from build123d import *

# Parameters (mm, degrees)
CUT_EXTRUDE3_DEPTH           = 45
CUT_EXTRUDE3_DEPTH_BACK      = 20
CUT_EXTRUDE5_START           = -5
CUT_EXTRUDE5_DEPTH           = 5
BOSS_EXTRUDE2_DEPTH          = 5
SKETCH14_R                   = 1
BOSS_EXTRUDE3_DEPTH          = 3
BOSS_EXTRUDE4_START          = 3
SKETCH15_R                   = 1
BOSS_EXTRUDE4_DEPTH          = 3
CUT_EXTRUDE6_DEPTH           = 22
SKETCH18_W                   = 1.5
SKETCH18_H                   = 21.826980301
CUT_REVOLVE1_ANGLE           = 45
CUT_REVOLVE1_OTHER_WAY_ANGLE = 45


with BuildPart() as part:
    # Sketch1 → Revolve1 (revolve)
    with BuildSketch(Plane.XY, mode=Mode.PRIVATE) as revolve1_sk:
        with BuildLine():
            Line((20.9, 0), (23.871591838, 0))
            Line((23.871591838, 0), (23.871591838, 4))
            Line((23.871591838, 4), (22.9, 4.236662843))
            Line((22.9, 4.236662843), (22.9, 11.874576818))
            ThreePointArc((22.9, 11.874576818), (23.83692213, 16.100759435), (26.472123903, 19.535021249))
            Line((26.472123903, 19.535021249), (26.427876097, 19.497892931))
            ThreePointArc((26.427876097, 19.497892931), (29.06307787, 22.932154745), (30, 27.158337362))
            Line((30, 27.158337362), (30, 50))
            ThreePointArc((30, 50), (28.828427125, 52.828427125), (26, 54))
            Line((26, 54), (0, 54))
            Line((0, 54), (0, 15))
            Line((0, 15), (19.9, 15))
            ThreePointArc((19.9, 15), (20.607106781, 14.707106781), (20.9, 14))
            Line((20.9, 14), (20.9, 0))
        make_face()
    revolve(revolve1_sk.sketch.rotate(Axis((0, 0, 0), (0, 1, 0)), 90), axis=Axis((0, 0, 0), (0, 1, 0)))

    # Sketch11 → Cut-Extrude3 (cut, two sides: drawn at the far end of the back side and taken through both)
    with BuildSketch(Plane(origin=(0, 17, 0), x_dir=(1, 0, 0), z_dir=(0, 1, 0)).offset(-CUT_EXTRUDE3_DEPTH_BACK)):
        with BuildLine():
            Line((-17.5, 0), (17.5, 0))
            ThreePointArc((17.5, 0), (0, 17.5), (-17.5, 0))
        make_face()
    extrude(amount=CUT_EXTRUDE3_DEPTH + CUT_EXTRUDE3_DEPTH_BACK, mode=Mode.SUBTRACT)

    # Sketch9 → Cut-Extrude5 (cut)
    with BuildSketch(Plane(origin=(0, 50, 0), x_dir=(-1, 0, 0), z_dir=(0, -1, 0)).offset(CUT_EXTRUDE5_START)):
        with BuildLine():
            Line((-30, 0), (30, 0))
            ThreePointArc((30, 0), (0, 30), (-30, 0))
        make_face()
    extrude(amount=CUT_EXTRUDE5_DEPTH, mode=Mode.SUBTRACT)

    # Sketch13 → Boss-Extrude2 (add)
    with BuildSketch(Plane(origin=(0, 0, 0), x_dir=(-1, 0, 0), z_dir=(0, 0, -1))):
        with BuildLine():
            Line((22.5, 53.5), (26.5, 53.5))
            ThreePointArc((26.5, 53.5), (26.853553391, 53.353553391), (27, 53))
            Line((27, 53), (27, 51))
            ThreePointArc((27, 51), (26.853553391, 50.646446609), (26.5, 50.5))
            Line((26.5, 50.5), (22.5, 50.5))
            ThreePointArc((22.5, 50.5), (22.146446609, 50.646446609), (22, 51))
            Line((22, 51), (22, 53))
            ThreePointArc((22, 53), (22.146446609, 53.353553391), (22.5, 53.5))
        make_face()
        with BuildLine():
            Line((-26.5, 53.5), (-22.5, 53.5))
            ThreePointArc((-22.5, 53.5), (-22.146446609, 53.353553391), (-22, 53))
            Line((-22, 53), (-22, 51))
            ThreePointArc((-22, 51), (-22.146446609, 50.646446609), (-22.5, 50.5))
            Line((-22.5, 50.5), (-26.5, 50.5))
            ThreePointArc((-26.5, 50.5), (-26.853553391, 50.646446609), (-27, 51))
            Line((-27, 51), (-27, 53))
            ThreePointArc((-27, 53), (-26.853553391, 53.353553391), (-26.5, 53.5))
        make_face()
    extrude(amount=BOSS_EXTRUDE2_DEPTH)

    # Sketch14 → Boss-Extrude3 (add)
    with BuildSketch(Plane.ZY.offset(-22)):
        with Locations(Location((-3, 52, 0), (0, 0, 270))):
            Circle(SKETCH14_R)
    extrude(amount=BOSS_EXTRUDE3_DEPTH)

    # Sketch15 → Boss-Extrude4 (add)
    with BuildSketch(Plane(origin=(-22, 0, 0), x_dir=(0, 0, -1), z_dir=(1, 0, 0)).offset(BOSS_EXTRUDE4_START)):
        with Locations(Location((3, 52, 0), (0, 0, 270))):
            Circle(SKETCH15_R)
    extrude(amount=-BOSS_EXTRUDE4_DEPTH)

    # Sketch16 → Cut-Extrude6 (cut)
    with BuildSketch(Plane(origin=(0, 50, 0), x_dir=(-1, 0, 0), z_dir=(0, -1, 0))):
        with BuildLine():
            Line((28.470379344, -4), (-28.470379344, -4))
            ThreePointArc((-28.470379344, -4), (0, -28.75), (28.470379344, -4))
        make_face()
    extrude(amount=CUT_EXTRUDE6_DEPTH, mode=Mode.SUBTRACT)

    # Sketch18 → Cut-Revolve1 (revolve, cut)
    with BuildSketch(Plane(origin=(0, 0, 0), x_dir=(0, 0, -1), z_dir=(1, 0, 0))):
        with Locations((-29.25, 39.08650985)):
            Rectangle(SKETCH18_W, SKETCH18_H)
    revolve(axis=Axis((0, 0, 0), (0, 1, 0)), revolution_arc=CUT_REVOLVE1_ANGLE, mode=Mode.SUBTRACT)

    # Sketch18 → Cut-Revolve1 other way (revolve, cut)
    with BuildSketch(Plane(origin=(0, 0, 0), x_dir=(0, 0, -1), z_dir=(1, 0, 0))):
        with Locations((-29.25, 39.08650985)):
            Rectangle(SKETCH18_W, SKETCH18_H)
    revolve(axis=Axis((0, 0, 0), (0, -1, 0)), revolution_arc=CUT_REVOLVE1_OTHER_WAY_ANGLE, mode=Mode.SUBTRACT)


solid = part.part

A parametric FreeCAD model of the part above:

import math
import FreeCAD as App
import Part
import Sketcher

V = App.Vector
Q = App.Units.Quantity

doc = App.newDocument("Part")
body = doc.addObject("PartDesign::Body", "Body")

# Sketch on XY plane
sketch1 = doc.addObject("Sketcher::SketchObject", "Sketch")
body.addObject(sketch1)
sketch1.AttachmentSupport = (doc.XY_Plane, [""])
sketch1.MapMode = "FlatFace"
sketch1.addGeometry([
    Part.LineSegment(V(20.9, 0, 0), V(23.87, 0, 0)),  # 0
    Part.LineSegment(V(23.87, 0, 0), V(23.87, 4, 0)),  # 1
    Part.LineSegment(V(23.87, 4, 0), V(22.9, 4.24, 0)),  # 2
    Part.LineSegment(V(22.9, 4.24, 0), V(22.9, 11.87, 0)),  # 3
    Part.ArcOfCircle(Part.Circle(V(32.9, 11.87, 0), V(0, 0, 1), 10), math.radians(130), math.radians(180)),  # 4
    Part.LineSegment(V(26.47, 19.54, 0), V(26.43, 19.5, 0)),  # 5
    Part.ArcOfCircle(Part.Circle(V(20, 27.16, 0), V(0, 0, 1), 10), math.radians(-50), math.radians(0)),  # 6
    Part.LineSegment(V(30, 27.16, 0), V(30, 50, 0)),  # 7
    Part.ArcOfCircle(Part.Circle(V(26, 50, 0), V(0, 0, 1), 4), math.radians(0), math.radians(90)),  # 8
    Part.LineSegment(V(26, 54, 0), V(0, 54, 0)),  # 9
    Part.LineSegment(V(0, 54, 0), V(0, 15, 0)),  # 10
    Part.LineSegment(V(0, 15, 0), V(19.9, 15, 0)),  # 11
    Part.ArcOfCircle(Part.Circle(V(19.9, 14, 0), V(0, 0, 1), 1), math.radians(0), math.radians(90)),  # 12
    Part.LineSegment(V(20.9, 14, 0), V(20.9, 0, 0)),  # 13
], False)
sketch1.addConstraint([
    Sketcher.Constraint("Coincident", 0, 2, 1, 1),
    Sketcher.Constraint("Coincident", 1, 2, 2, 1),
    Sketcher.Constraint("Coincident", 2, 2, 3, 1),
    Sketcher.Constraint("Tangent", 3, 2, 4, 2),
    Sketcher.Constraint("Tangent", 4, 1, 5, 1),
    Sketcher.Constraint("Tangent", 5, 2, 6, 1),
    Sketcher.Constraint("Tangent", 6, 2, 7, 1),
    Sketcher.Constraint("Tangent", 7, 2, 8, 1),
    Sketcher.Constraint("Tangent", 8, 2, 9, 1),
    Sketcher.Constraint("Coincident", 9, 2, 10, 1),
    Sketcher.Constraint("Coincident", 10, 2, 11, 1),
    Sketcher.Constraint("Tangent", 11, 2, 12, 2),
    Sketcher.Constraint("Tangent", 12, 1, 13, 1),
    Sketcher.Constraint("Coincident", 13, 2, 0, 1),
    Sketcher.Constraint("Horizontal", 0),
    Sketcher.Constraint("Vertical", 1),
    Sketcher.Constraint("Vertical", 3),
    Sketcher.Constraint("Vertical", 7),
    Sketcher.Constraint("Horizontal", 9),
    Sketcher.Constraint("Vertical", 10),
    Sketcher.Constraint("Horizontal", 11),
    Sketcher.Constraint("Vertical", 13),
    Sketcher.Constraint("Equal", 4, 6),
    Sketcher.Constraint("PointOnObject", 0, 2, -1),
    Sketcher.Constraint("PointOnObject", 9, 2, -2),
    Sketcher.Constraint("Radius", 4, Q("10 mm")),
    Sketcher.Constraint("Radius", 8, Q("4 mm")),
    Sketcher.Constraint("Radius", 12, Q("1 mm")),
    Sketcher.Constraint("DistanceX", 9, 2, 9, 1, Q("26 mm")),
    Sketcher.Constraint("DistanceY", 1, 1, 1, 2, Q("4 mm")),
    Sketcher.Constraint("DistanceY", 10, 2, 10, 1, Q("39 mm")),
    Sketcher.Constraint("DistanceY", 13, 2, 13, 1, Q("14 mm")),
    Sketcher.Constraint("Angle", 5, Q("-140 deg")),
    Sketcher.Constraint("Distance", 2, Q("1 mm")),
    Sketcher.Constraint("DistanceX", 11, 1, 11, 2, Q("19.9 mm")),
    Sketcher.Constraint("DistanceX", 12, 3, 4, 3, Q("13 mm")),
    Sketcher.Constraint("DistanceX", 0, 1, 0, 2, Q("2.971592 mm")),
    Sketcher.Constraint("DistanceY", 3, 1, 3, 2, Q("7.637914 mm")),
])
revolution = doc.addObject("PartDesign::Revolution", "Revolution")
body.addObject(revolution)
revolution.Profile = sketch1
revolution.ReferenceAxis = (sketch1, ["V_Axis"])
revolution.Angle = 360

# Sketch on XZ plane
sketch2 = doc.addObject("Sketcher::SketchObject", "Sketch001")
body.addObject(sketch2)
sketch2.AttachmentSupport = (doc.XZ_Plane, [""])
sketch2.MapMode = "FlatFace"
sketch2.AttachmentOffset = App.Placement(V(0, 0, -17), App.Rotation())
sketch2.addGeometry([
    Part.LineSegment(V(-18, 0, 0), V(18, 0, 0)),
    Part.ArcOfCircle(Part.Circle(V(0, 0, 0), V(0, 0, 1), 18), math.radians(180), math.radians(360)),
], False)
sketch2.addConstraint([
    Sketcher.Constraint("Coincident", 0, 1, 1, 1),
    Sketcher.Constraint("Coincident", 1, 2, 0, 2),
    Sketcher.Constraint("Horizontal", 0),
    Sketcher.Constraint("Coincident", 1, 3, -1, 1),
    Sketcher.Constraint("PointOnObject", 0, 1, -1),
    Sketcher.Constraint("Radius", 1, Q("17.5 mm")),
])
pocket1 = doc.addObject("PartDesign::Pocket", "Pocket")
body.addObject(pocket1)
pocket1.Profile = sketch2
pocket1.Type = "ThroughAll"
pocket1.Midplane = True

# Sketch on XZ plane
sketch3 = doc.addObject("Sketcher::SketchObject", "Sketch002")
body.addObject(sketch3)
sketch3.AttachmentSupport = (doc.XZ_Plane, [""])
sketch3.MapMode = "FlatFace"
sketch3.AttachmentOffset = App.Placement(V(0, 0, -55), App.Rotation())
sketch3.addGeometry([
    Part.LineSegment(V(30, 0, 0), V(-30, 0, 0)),
    Part.ArcOfCircle(Part.Circle(V(0, 0, 0), V(0, 0, 1), 30), math.radians(180), math.radians(360)),
], False)
sketch3.addConstraint([
    Sketcher.Constraint("Coincident", 0, 1, 1, 2),
    Sketcher.Constraint("Coincident", 1, 1, 0, 2),
    Sketcher.Constraint("Horizontal", 0),
    Sketcher.Constraint("Coincident", 1, 3, -1, 1),
    Sketcher.Constraint("PointOnObject", 0, 1, -1),
    Sketcher.Constraint("Radius", 1, Q("30 mm")),
])
pocket2 = doc.addObject("PartDesign::Pocket", "Pocket001")
body.addObject(pocket2)
pocket2.Profile = sketch3
pocket2.Length = 5
pocket2.Reversed = True

# Sketch on XY plane
sketch4 = doc.addObject("Sketcher::SketchObject", "Sketch003")
body.addObject(sketch4)
sketch4.AttachmentSupport = (doc.XY_Plane, [""])
sketch4.MapMode = "FlatFace"
sketch4.addGeometry([
    Part.LineSegment(V(-26.5, 53.5, 0), V(-22.5, 53.5, 0)),  # 0
    Part.ArcOfCircle(Part.Circle(V(-22.5, 53, 0), V(0, 0, 1), 0.5), math.radians(0), math.radians(90)),  # 1
    Part.LineSegment(V(-22, 53, 0), V(-22, 51, 0)),  # 2
    Part.ArcOfCircle(Part.Circle(V(-22.5, 51, 0), V(0, 0, 1), 0.5), math.radians(-90), math.radians(0)),  # 3
    Part.LineSegment(V(-22.5, 50.5, 0), V(-26.5, 50.5, 0)),  # 4
    Part.ArcOfCircle(Part.Circle(V(-26.5, 51, 0), V(0, 0, 1), 0.5), math.radians(180), math.radians(270)),  # 5
    Part.LineSegment(V(-27, 51, 0), V(-27, 53, 0)),  # 6
    Part.ArcOfCircle(Part.Circle(V(-26.5, 53, 0), V(0, 0, 1), 0.5), math.radians(90), math.radians(180)),  # 7
    Part.LineSegment(V(22.5, 53.5, 0), V(26.5, 53.5, 0)),  # 8
    Part.ArcOfCircle(Part.Circle(V(26.5, 53, 0), V(0, 0, 1), 0.5), math.radians(0), math.radians(90)),  # 9
    Part.LineSegment(V(27, 53, 0), V(27, 51, 0)),  # 10
    Part.ArcOfCircle(Part.Circle(V(26.5, 51, 0), V(0, 0, 1), 0.5), math.radians(-90), math.radians(0)),  # 11
    Part.LineSegment(V(26.5, 50.5, 0), V(22.5, 50.5, 0)),  # 12
    Part.ArcOfCircle(Part.Circle(V(22.5, 51, 0), V(0, 0, 1), 0.5), math.radians(180), math.radians(270)),  # 13
    Part.LineSegment(V(22, 51, 0), V(22, 53, 0)),  # 14
    Part.ArcOfCircle(Part.Circle(V(22.5, 53, 0), V(0, 0, 1), 0.5), math.radians(90), math.radians(180)),  # 15
], False)
sketch4.addConstraint([
    Sketcher.Constraint("Tangent", 0, 2, 1, 2),
    Sketcher.Constraint("Tangent", 1, 1, 2, 1),
    Sketcher.Constraint("Tangent", 2, 2, 3, 2),
    Sketcher.Constraint("Tangent", 3, 1, 4, 1),
    Sketcher.Constraint("Tangent", 4, 2, 5, 2),
    Sketcher.Constraint("Tangent", 5, 1, 6, 1),
    Sketcher.Constraint("Tangent", 6, 2, 7, 2),
    Sketcher.Constraint("Tangent", 7, 1, 0, 1),
    Sketcher.Constraint("Tangent", 8, 2, 9, 2),
    Sketcher.Constraint("Tangent", 9, 1, 10, 1),
    Sketcher.Constraint("Tangent", 10, 2, 11, 2),
    Sketcher.Constraint("Tangent", 11, 1, 12, 1),
    Sketcher.Constraint("Tangent", 12, 2, 13, 2),
    Sketcher.Constraint("Tangent", 13, 1, 14, 1),
    Sketcher.Constraint("Tangent", 14, 2, 15, 2),
    Sketcher.Constraint("Tangent", 15, 1, 8, 1),
    Sketcher.Constraint("Horizontal", 0),
    Sketcher.Constraint("Vertical", 2),
    Sketcher.Constraint("Horizontal", 4),
    Sketcher.Constraint("Vertical", 6),
    Sketcher.Constraint("Horizontal", 8),
    Sketcher.Constraint("Vertical", 10),
    Sketcher.Constraint("Horizontal", 12),
    Sketcher.Constraint("Vertical", 14),
    Sketcher.Constraint("Equal", 1, 3),
    Sketcher.Constraint("Equal", 3, 5),
    Sketcher.Constraint("Equal", 5, 7),
    Sketcher.Constraint("Equal", 7, 9),
    Sketcher.Constraint("Equal", 9, 11),
    Sketcher.Constraint("Equal", 11, 13),
    Sketcher.Constraint("Equal", 13, 15),
    Sketcher.Constraint("Symmetric", 7, 3, 9, 3, -2),
    Sketcher.Constraint("Symmetric", 3, 3, 13, 3, -2),
    Sketcher.Constraint("Radius", 1, Q("0.5 mm")),
    Sketcher.Constraint("DistanceX", 0, 1, 0, 2, Q("4 mm")),
    Sketcher.Constraint("DistanceY", 2, 2, 2, 1, Q("2 mm")),
    Sketcher.Constraint("DistanceY", -1, 1, 1, 3, Q("53 mm")),
    Sketcher.Constraint("DistanceX", 1, 1, -1, 1, Q("22 mm")),
])
pad1 = doc.addObject("PartDesign::Pad", "Pad")
body.addObject(pad1)
pad1.Profile = sketch4
pad1.Length = 5
pad1.Reversed = True

# Sketch on YZ plane
sketch5 = doc.addObject("Sketcher::SketchObject", "Sketch004")
body.addObject(sketch5)
sketch5.AttachmentSupport = (doc.YZ_Plane, [""])
sketch5.MapMode = "FlatFace"
sketch5.AttachmentOffset = App.Placement(V(0, 0, 22), App.Rotation())
sketch5.addGeometry(Part.Circle(V(52, -3, 0), V(0, 0, 1), 1), False)
sketch5.addConstraint([
    Sketcher.Constraint("Diameter", 0, Q("2 mm")),
    Sketcher.Constraint("DistanceX", -1, 1, 0, 3, Q("52 mm")),
    Sketcher.Constraint("DistanceY", 0, 3, -1, 1, Q("3 mm")),
])
pad2 = doc.addObject("PartDesign::Pad", "Pad001")
body.addObject(pad2)
pad2.Profile = sketch5
pad2.Length = 3
pad2.Reversed = True

# Sketch on YZ plane
sketch6 = doc.addObject("Sketcher::SketchObject", "Sketch005")
body.addObject(sketch6)
sketch6.AttachmentSupport = (doc.YZ_Plane, [""])
sketch6.MapMode = "FlatFace"
sketch6.AttachmentOffset = App.Placement(V(0, 0, -19), App.Rotation())
sketch6.addGeometry(Part.Circle(V(52, -3, 0), V(0, 0, 1), 1), False)
sketch6.addConstraint([
    Sketcher.Constraint("Diameter", 0, Q("2 mm")),
    Sketcher.Constraint("DistanceX", -1, 1, 0, 3, Q("52 mm")),
    Sketcher.Constraint("DistanceY", 0, 3, -1, 1, Q("3 mm")),
])
pad3 = doc.addObject("PartDesign::Pad", "Pad002")
body.addObject(pad3)
pad3.Profile = sketch6
pad3.Length = 3
pad3.Reversed = True

# Sketch on XZ plane
sketch7 = doc.addObject("Sketcher::SketchObject", "Sketch006")
body.addObject(sketch7)
sketch7.AttachmentSupport = (doc.XZ_Plane, [""])
sketch7.MapMode = "FlatFace"
sketch7.AttachmentOffset = App.Placement(V(0, 0, -50), App.Rotation())
sketch7.addGeometry([
    Part.LineSegment(V(-28, 4, 0), V(28, 4, 0)),
    Part.ArcOfCircle(Part.Circle(V(0, 0, 0), V(0, 0, 1), 29), math.radians(8), math.radians(172)),
], False)
sketch7.addConstraint([
    Sketcher.Constraint("Coincident", 0, 1, 1, 2),
    Sketcher.Constraint("Coincident", 1, 1, 0, 2),
    Sketcher.Constraint("Horizontal", 0),
    Sketcher.Constraint("Coincident", 1, 3, -1, 1),
    Sketcher.Constraint("Radius", 1, Q("28.75 mm")),
    Sketcher.Constraint("DistanceY", -1, 1, 0, 1, Q("4 mm")),
])
pocket3 = doc.addObject("PartDesign::Pocket", "Pocket002")
body.addObject(pocket3)
pocket3.Profile = sketch7
pocket3.Length = 22
pocket3.Reversed = True

# Sketch on YZ plane
sketch8 = doc.addObject("Sketcher::SketchObject", "Sketch007")
body.addObject(sketch8)
sketch8.AttachmentSupport = (doc.YZ_Plane, [""])
sketch8.MapMode = "FlatFace"
sketch8.addGeometry([
    Part.LineSegment(V(50, 30, 0), V(28.2, 30, 0)),
    Part.LineSegment(V(28.2, 30, 0), V(28.2, 28.5, 0)),
    Part.LineSegment(V(28.2, 28.5, 0), V(50, 28.5, 0)),
    Part.LineSegment(V(50, 28.5, 0), V(50, 30, 0)),
], False)
sketch8.addConstraint([
    Sketcher.Constraint("Coincident", 0, 2, 1, 1),
    Sketcher.Constraint("Coincident", 1, 2, 2, 1),
    Sketcher.Constraint("Coincident", 2, 2, 3, 1),
    Sketcher.Constraint("Coincident", 3, 2, 0, 1),
    Sketcher.Constraint("Horizontal", 0),
    Sketcher.Constraint("Vertical", 1),
    Sketcher.Constraint("Horizontal", 2),
    Sketcher.Constraint("Vertical", 3),
    Sketcher.Constraint("DistanceY", 1, 2, 1, 1, Q("1.5 mm")),
    Sketcher.Constraint("DistanceY", -1, 1, 0, 2, Q("30 mm")),
    Sketcher.Constraint("DistanceX", -1, 1, 2, 2, Q("50 mm")),
    Sketcher.Constraint("DistanceX", 0, 2, 0, 1, Q("21.82698 mm")),
])
groove = doc.addObject("PartDesign::Groove", "Groove")
body.addObject(groove)
groove.Profile = sketch8
groove.ReferenceAxis = (sketch8, ["H_Axis"])
groove.Angle = 45

# Sketch on YZ plane
sketch9 = doc.addObject("Sketcher::SketchObject", "Sketch008")
body.addObject(sketch9)
sketch9.AttachmentSupport = (doc.YZ_Plane, [""])
sketch9.MapMode = "FlatFace"
sketch9.addGeometry([
    Part.LineSegment(V(50, 30, 0), V(28.2, 30, 0)),
    Part.LineSegment(V(28.2, 30, 0), V(28.2, 28.5, 0)),
    Part.LineSegment(V(28.2, 28.5, 0), V(50, 28.5, 0)),
    Part.LineSegment(V(50, 28.5, 0), V(50, 30, 0)),
], False)
sketch9.addConstraint([
    Sketcher.Constraint("Coincident", 0, 2, 1, 1),
    Sketcher.Constraint("Coincident", 1, 2, 2, 1),
    Sketcher.Constraint("Coincident", 2, 2, 3, 1),
    Sketcher.Constraint("Coincident", 3, 2, 0, 1),
    Sketcher.Constraint("Horizontal", 0),
    Sketcher.Constraint("Vertical", 1),
    Sketcher.Constraint("Horizontal", 2),
    Sketcher.Constraint("Vertical", 3),
    Sketcher.Constraint("DistanceY", 1, 2, 1, 1, Q("1.5 mm")),
    Sketcher.Constraint("DistanceY", -1, 1, 0, 2, Q("30 mm")),
    Sketcher.Constraint("DistanceX", -1, 1, 2, 2, Q("50 mm")),
    Sketcher.Constraint("DistanceX", 0, 2, 0, 1, Q("21.82698 mm")),
])
groove2 = doc.addObject("PartDesign::Groove", "Groove001")
body.addObject(groove2)
groove2.Profile = sketch9
groove2.ReferenceAxis = (sketch9, ["H_Axis"])
groove2.Angle = 45
groove2.Reversed = True

doc.recompute()
